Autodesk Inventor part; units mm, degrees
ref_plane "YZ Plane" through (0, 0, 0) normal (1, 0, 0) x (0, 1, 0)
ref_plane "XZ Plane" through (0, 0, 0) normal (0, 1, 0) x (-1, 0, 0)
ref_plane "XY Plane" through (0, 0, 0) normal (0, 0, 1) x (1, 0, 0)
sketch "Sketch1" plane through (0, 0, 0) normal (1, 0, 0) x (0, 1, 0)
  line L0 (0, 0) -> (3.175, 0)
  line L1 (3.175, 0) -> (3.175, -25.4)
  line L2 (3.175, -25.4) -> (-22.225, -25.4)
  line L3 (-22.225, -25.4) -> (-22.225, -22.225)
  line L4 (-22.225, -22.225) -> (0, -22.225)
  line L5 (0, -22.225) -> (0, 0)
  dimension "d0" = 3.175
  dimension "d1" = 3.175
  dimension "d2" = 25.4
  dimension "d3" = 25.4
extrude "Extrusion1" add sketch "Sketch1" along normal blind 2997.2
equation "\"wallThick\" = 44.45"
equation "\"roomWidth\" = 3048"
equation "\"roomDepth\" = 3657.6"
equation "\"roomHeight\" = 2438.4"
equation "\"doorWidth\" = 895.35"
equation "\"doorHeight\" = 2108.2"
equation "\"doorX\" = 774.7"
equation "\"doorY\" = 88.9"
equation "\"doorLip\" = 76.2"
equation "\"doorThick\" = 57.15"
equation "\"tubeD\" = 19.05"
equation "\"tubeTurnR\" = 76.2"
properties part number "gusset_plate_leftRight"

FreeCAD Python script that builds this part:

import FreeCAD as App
import Part
import Sketcher

V = App.Vector
Q = App.Units.Quantity


def add_polygon(sketch, points):
    """Adds a closed chain of lines whose ends are joined by coincident constraints."""
    first, n = sketch.GeometryCount, len(points)
    for a, b in zip(points, points[1:] + points[:1]):
        sketch.addGeometry(Part.LineSegment(App.Vector(*a, 0), App.Vector(*b, 0)), False)
    for i in range(n):
        sketch.addConstraint(Sketcher.Constraint("Coincident", first + i, 2, first + (i + 1) % n, 1))

doc = App.newDocument("Part")
body = doc.addObject("PartDesign::Body", "Body")

sketch1 = body.newObject("Sketcher::SketchObject", "Sketch")
sketch1.AttachmentSupport = (doc.getObject("YZ_Plane"), [""])
sketch1.MapMode = "FlatFace"
add_polygon(sketch1, [(3.2, 0), (0, 0), (0, -22.2), (-22.2, -22.2), (-22.2, -25.4), (3.2, -25.4)])
sketch1.addConstraint([
    Sketcher.Constraint("Horizontal", 0),
    Sketcher.Constraint("Vertical", 1),
    Sketcher.Constraint("Horizontal", 2),
    Sketcher.Constraint("Vertical", 3),
    Sketcher.Constraint("Horizontal", 4),
    Sketcher.Constraint("Vertical", 5),
    Sketcher.Constraint("Coincident", 0, 2, -1, 1),
    Sketcher.Constraint("Equal", 2, 1),
    Sketcher.Constraint("Equal", 0, 3),
    Sketcher.Constraint("DistanceX", 4, 1, 4, 2, Q("1 in")),
    Sketcher.Constraint("DistanceX", 0, 2, 0, 1, Q("0.125 in")),
])
pad1 = body.newObject("PartDesign::Pad", "Pad")
pad1.Profile = sketch1
pad1.Length = Q("118 in")

doc.recompute()
